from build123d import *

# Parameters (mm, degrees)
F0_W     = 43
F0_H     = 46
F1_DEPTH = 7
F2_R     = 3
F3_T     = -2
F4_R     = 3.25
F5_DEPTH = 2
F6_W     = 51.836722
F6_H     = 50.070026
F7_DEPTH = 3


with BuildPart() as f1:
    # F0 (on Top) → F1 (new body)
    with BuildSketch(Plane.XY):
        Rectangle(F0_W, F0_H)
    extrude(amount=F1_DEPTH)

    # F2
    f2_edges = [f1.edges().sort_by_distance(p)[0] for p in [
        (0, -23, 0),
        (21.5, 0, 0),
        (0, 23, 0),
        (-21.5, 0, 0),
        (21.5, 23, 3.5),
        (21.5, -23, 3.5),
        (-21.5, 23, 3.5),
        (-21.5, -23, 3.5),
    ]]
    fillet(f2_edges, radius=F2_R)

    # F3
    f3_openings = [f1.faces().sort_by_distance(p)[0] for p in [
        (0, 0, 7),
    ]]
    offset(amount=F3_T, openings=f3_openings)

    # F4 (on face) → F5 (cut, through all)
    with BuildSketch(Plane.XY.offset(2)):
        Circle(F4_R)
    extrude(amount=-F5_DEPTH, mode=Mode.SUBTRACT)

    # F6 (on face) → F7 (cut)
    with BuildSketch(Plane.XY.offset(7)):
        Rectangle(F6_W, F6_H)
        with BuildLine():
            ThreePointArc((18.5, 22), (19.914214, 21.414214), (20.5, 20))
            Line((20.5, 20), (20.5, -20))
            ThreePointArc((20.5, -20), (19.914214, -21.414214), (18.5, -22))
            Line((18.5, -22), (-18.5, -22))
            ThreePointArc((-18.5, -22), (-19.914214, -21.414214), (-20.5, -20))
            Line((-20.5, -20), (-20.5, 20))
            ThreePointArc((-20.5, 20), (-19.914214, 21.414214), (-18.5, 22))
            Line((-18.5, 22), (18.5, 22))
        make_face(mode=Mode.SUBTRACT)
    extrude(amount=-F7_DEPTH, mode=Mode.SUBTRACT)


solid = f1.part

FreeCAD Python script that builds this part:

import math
import FreeCAD as App
import Part
import Sketcher


def edges_at(feature, points):
    """Names of the edges that pass closest to the given points."""
    edges = feature.Shape.Edges
    near = lambda p: min(range(len(edges)), key=lambda i: edges[i].distToShape(Part.Vertex(*p))[0])
    return sorted({f"Edge{near(p) + 1}" for p in points})


def faces_at(feature, points):
    """Names of the faces that lie closest to the given points."""
    faces = feature.Shape.Faces
    near = lambda p: min(range(len(faces)), key=lambda i: faces[i].distToShape(Part.Vertex(*p))[0])
    return sorted({f"Face{near(p) + 1}" for p in points})


def add_polygon(sketch, points):
    """Adds a closed chain of lines whose ends are joined by coincident constraints."""
    first, n = sketch.GeometryCount, len(points)
    for a, b in zip(points, points[1:] + points[:1]):
        sketch.addGeometry(Part.LineSegment(App.Vector(*a, 0), App.Vector(*b, 0)), False)
    for i in range(n):
        sketch.addConstraint(Sketcher.Constraint("Coincident", first + i, 2, first + (i + 1) % n, 1))

doc = App.newDocument("Part")
body = doc.addObject("PartDesign::Body", "Body")

sketch1 = doc.addObject("Sketcher::SketchObject", "Sketch")
body.addObject(sketch1)
sketch1.AttachmentSupport = (doc.XY_Plane, [""])
sketch1.MapMode = "FlatFace"
add_polygon(sketch1, [(-21.5, 23), (-21.5, -23), (21.5, -23), (21.5, 23)])
sketch1.addConstraint(Sketcher.Constraint("Vertical", 0))
sketch1.addConstraint(Sketcher.Constraint("Horizontal", 1))
sketch1.addConstraint(Sketcher.Constraint("Vertical", 2))
sketch1.addConstraint(Sketcher.Constraint("Horizontal", 3))
sketch1.addConstraint(Sketcher.Constraint("Symmetric", 0, 2, 2, 2, -1, 1))
sketch1.addConstraint(Sketcher.Constraint("DistanceX", 1, 1, 1, 2, 43.0))
sketch1.addConstraint(Sketcher.Constraint("DistanceY", 0, 2, 0, 1, 46.0))
pad1 = doc.addObject("PartDesign::Pad", "Pad")
body.addObject(pad1)
pad1.Profile = sketch1
pad1.Length = 7
doc.recompute()

fillet = doc.addObject("PartDesign::Fillet", "Fillet")
body.addObject(fillet)
fillet.Base = (pad1, edges_at(pad1, [
    (0, -23, 0),
    (21.5, 0, 0),
    (0, 23, 0),
    (-21.5, 0, 0),
    (21.5, 23, 3.5),
    (21.5, -23, 3.5),
    (-21.5, 23, 3.5),
    (-21.5, -23, 3.5),
]))
fillet.Radius = 3
doc.recompute()

thickness = doc.addObject("PartDesign::Thickness", "Thickness")
body.addObject(thickness)
thickness.Base = (fillet, faces_at(fillet, [(0, 0, 7)]))
thickness.Value = 2
thickness.Reversed = True
thickness.Join = "Arc"

sketch2 = doc.addObject("Sketcher::SketchObject", "Sketch001")
body.addObject(sketch2)
sketch2.AttachmentSupport = (doc.XY_Plane, [""])
sketch2.MapMode = "FlatFace"
sketch2.AttachmentOffset = App.Placement(App.Vector(0, 0, 2), App.Rotation())
sketch2.addGeometry(Part.Circle(App.Vector(0, 0, 0), App.Vector(0, 0, 1), 3.25), False)
sketch2.addConstraint(Sketcher.Constraint("Coincident", 0, 3, -1, 1))
sketch2.addConstraint(Sketcher.Constraint("Diameter", 0, 6.5))
pocket1 = doc.addObject("PartDesign::Pocket", "Pocket")
body.addObject(pocket1)
pocket1.Profile = sketch2
pocket1.Type = "ThroughAll"

sketch3 = doc.addObject("Sketcher::SketchObject", "Sketch002")
body.addObject(sketch3)
sketch3.AttachmentSupport = (doc.XY_Plane, [""])
sketch3.MapMode = "FlatFace"
sketch3.AttachmentOffset = App.Placement(App.Vector(0, 0, 7), App.Rotation())
add_polygon(sketch3, [(-25.918361, 25.035013), (-25.918361, -25.035013), (25.918361, -25.035013), (25.918361, 25.035013)])
sketch3.addGeometry(Part.LineSegment(App.Vector(-18.5, 22, 0), App.Vector(18.5, 22, 0)), False)
sketch3.addGeometry(Part.ArcOfCircle(Part.Circle(App.Vector(18.500001, 20.000001, 0), App.Vector(0, 0, 1), 1.999999), math.radians(-0.000043), math.radians(90.000043)), False)
sketch3.addGeometry(Part.LineSegment(App.Vector(20.5, 20, 0), App.Vector(20.5, -20, 0)), False)
sketch3.addGeometry(Part.ArcOfCircle(Part.Circle(App.Vector(18.500001, -20.000001, 0), App.Vector(0, 0, 1), 1.999999), math.radians(-90.000043), math.radians(0.000043)), False)
sketch3.addGeometry(Part.LineSegment(App.Vector(18.5, -22, 0), App.Vector(-18.5, -22, 0)), False)
sketch3.addGeometry(Part.ArcOfCircle(Part.Circle(App.Vector(-18.500001, -20.000001, 0), App.Vector(0, 0, 1), 1.999999), math.radians(179.999957), math.radians(270.000043)), False)
sketch3.addGeometry(Part.LineSegment(App.Vector(-20.5, -20, 0), App.Vector(-20.5, 20, 0)), False)
sketch3.addGeometry(Part.ArcOfCircle(Part.Circle(App.Vector(-18.500001, 20.000001, 0), App.Vector(0, 0, 1), 1.999999), math.radians(89.999957), math.radians(180.000043)), False)
sketch3.addConstraint(Sketcher.Constraint("Tangent", 4, 2, 5, 2))
sketch3.addConstraint(Sketcher.Constraint("Tangent", 5, 1, 6, 1))
sketch3.addConstraint(Sketcher.Constraint("Tangent", 6, 2, 7, 2))
sketch3.addConstraint(Sketcher.Constraint("Tangent", 7, 1, 8, 1))
sketch3.addConstraint(Sketcher.Constraint("Tangent", 8, 2, 9, 2))
sketch3.addConstraint(Sketcher.Constraint("Tangent", 9, 1, 10, 1))
sketch3.addConstraint(Sketcher.Constraint("Tangent", 10, 2, 11, 2))
sketch3.addConstraint(Sketcher.Constraint("Tangent", 11, 1, 4, 1))
sketch3.addConstraint(Sketcher.Constraint("Vertical", 0))
sketch3.addConstraint(Sketcher.Constraint("Horizontal", 1))
sketch3.addConstraint(Sketcher.Constraint("Vertical", 2))
sketch3.addConstraint(Sketcher.Constraint("Horizontal", 3))
sketch3.addConstraint(Sketcher.Constraint("Horizontal", 4))
sketch3.addConstraint(Sketcher.Constraint("Vertical", 6))
sketch3.addConstraint(Sketcher.Constraint("Horizontal", 8))
sketch3.addConstraint(Sketcher.Constraint("Vertical", 10))
sketch3.addConstraint(Sketcher.Constraint("Equal", 5, 7))
sketch3.addConstraint(Sketcher.Constraint("Equal", 7, 9))
sketch3.addConstraint(Sketcher.Constraint("Equal", 9, 11))
sketch3.addConstraint(Sketcher.Constraint("Symmetric", 5, 3, 9, 3, -1, 1))
sketch3.addConstraint(Sketcher.Constraint("Symmetric", 0, 2, 2, 2, -1, 1))
sketch3.addConstraint(Sketcher.Constraint("Radius", 5, 1.999999))
sketch3.addConstraint(Sketcher.Constraint("DistanceX", 4, 1, 4, 2, 37.0))
sketch3.addConstraint(Sketcher.Constraint("DistanceY", 6, 2, 6, 1, 40.0))
sketch3.addConstraint(Sketcher.Constraint("DistanceX", 1, 1, 1, 2, 51.836722))
sketch3.addConstraint(Sketcher.Constraint("DistanceY", 0, 2, 0, 1, 50.070026))
pocket2 = doc.addObject("PartDesign::Pocket", "Pocket001")
body.addObject(pocket2)
pocket2.Profile = sketch3
pocket2.Length = 3

doc.recompute()
